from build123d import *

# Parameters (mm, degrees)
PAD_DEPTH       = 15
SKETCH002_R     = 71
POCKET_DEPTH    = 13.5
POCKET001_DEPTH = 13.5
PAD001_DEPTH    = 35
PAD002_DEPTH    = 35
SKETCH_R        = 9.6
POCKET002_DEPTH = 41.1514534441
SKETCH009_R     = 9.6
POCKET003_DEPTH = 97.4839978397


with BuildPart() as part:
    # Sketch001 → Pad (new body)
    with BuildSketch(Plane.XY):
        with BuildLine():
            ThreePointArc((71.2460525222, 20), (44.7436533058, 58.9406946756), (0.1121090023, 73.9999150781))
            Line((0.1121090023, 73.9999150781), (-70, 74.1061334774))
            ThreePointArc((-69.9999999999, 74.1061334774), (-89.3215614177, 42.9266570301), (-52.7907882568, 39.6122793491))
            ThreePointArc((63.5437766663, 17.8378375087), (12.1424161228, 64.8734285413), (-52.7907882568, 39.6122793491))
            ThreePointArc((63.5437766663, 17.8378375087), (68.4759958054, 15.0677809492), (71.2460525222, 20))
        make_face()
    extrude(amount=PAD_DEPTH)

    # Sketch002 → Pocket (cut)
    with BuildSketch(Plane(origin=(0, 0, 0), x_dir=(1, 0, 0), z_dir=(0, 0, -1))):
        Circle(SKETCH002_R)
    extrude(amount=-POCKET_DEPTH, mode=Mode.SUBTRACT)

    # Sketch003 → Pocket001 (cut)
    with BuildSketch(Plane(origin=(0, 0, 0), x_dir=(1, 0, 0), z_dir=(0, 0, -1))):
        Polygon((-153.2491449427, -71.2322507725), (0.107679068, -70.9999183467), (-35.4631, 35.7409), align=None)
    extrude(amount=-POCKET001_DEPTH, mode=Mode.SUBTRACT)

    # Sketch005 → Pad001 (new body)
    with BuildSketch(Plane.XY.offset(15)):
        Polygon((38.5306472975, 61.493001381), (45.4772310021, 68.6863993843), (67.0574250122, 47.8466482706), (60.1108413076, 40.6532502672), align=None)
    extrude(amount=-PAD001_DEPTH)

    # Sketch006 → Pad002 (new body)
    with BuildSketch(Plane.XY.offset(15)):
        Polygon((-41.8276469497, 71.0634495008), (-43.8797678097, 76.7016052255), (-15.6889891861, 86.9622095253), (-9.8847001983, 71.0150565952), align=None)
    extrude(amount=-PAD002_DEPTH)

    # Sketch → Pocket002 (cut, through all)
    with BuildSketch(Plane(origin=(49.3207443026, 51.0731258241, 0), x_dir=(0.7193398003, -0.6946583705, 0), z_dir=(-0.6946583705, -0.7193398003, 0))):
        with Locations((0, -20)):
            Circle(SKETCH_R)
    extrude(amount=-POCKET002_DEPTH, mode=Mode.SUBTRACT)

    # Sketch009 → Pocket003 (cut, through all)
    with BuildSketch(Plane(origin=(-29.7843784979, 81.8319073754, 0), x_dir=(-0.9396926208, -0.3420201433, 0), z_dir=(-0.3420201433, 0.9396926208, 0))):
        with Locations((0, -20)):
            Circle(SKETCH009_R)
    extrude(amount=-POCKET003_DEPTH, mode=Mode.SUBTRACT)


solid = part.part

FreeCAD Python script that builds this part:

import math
import FreeCAD as App
import Part
import Sketcher
Q = App.Units.Quantity


def add_polygon(sketch, points):
    """Adds a closed chain of lines whose ends are joined by coincident constraints."""
    first, n = sketch.GeometryCount, len(points)
    for a, b in zip(points, points[1:] + points[:1]):
        sketch.addGeometry(Part.LineSegment(App.Vector(*a, 0), App.Vector(*b, 0)), False)
    for i in range(n):
        sketch.addConstraint(Sketcher.Constraint("Coincident", first + i, 2, first + (i + 1) % n, 1))

doc = App.newDocument("Part")
body = doc.addObject("PartDesign::Body", "Body")

sketch1 = doc.addObject("Sketcher::SketchObject", "Sketch")
body.addObject(sketch1)
sketch1.AttachmentSupport = (doc.XY_Plane, [""])
sketch1.MapMode = "FlatFace"
sketch1.addGeometry(Part.ArcOfCircle(Part.Circle(App.Vector(0, 0, 0), App.Vector(0, 0, 1), 74), math.radians(15.68035), math.radians(89.913198)), False)
sketch1.addGeometry(Part.LineSegment(App.Vector(0.112109, 73.999915, 0), App.Vector(-70, 74.106133, 0)), False)
sketch1.addGeometry(Part.ArcOfCircle(Part.Circle(App.Vector(-70.032711, 52.549992, 0), App.Vector(0, 0, 1), 21.556166), math.radians(89.913054), math.radians(323.116769)), False)
sketch1.addGeometry(Part.ArcOfCircle(Part.Circle(App.Vector(0, 0, 0), App.Vector(0, 0, 1), 66), math.radians(15.68035), math.radians(143.116776)), False)
sketch1.addGeometry(Part.ArcOfCircle(Part.Circle(App.Vector(67.394915, 18.918919, 0), App.Vector(0, 0, 1), 4), math.radians(-164.319646), math.radians(15.680351)), False)
sketch1.addConstraint(Sketcher.Constraint("Tangent", 0, 2, 1, 1))
sketch1.addConstraint(Sketcher.Constraint("Coincident", 1, 2, 2, 1))
sketch1.addConstraint(Sketcher.Constraint("Tangent", 2, 2, 3, 2))
sketch1.addConstraint(Sketcher.Constraint("Tangent", 3, 1, 4, 1))
sketch1.addConstraint(Sketcher.Constraint("Tangent", 4, 2, 0, 1))
sketch1.addConstraint(Sketcher.Constraint("Coincident", 0, 3, -1, 1))
sketch1.addConstraint(Sketcher.Constraint("Coincident", 3, 3, -1, 1))
sketch1.addConstraint(Sketcher.Constraint("Radius", 0, Q("74 mm")))
sketch1.addConstraint(Sketcher.Constraint("Radius", 3, Q("66 mm")))
sketch1.addConstraint(Sketcher.Constraint("DistanceX", 1, 2, -1, 1, Q("70 mm")))
sketch1.addConstraint(Sketcher.Constraint("DistanceY", -1, 1, 4, 2, Q("20 mm")))
sketch1.addConstraint(Sketcher.Constraint("Radius", 2, Q("21.556166 mm")))
sketch1.addConstraint(Sketcher.Constraint("Distance", 1, Q("70.112189 mm")))
pad1 = doc.addObject("PartDesign::Pad", "Pad")
body.addObject(pad1)
pad1.Profile = sketch1
pad1.Length = 15

sketch2 = doc.addObject("Sketcher::SketchObject", "Sketch001")
body.addObject(sketch2)
sketch2.AttachmentSupport = (doc.XY_Plane, [""])
sketch2.MapMode = "FlatFace"
sketch2.addGeometry(Part.Circle(App.Vector(0, 0, 0), App.Vector(0, 0, 1), 71), False)
sketch2.addConstraint(Sketcher.Constraint("Coincident", 0, 3, -1, 1))
sketch2.addConstraint(Sketcher.Constraint("Diameter", 0, Q("142 mm")))
pocket1 = doc.addObject("PartDesign::Pocket", "Pocket")
body.addObject(pocket1)
pocket1.Profile = sketch2
pocket1.Length = 13.5
pocket1.Reversed = True

sketch3 = doc.addObject("Sketcher::SketchObject", "Sketch002")
body.addObject(sketch3)
sketch3.AttachmentSupport = (doc.XY_Plane, [""])
sketch3.MapMode = "FlatFace"
add_polygon(sketch3, [(-153.249145, 71.232251), (0.107679, 70.999918), (-35.4631, -35.7409)])
sketch3.addConstraint(Sketcher.Constraint("Distance", 0, Q("153.357 mm")))
sketch3.addConstraint(Sketcher.Constraint("Distance", 1, Q("112.5117 mm")))
sketch3.addConstraint(Sketcher.Constraint("DistanceX", 1, 2, -1, 1, Q("35.4631 mm")))
sketch3.addConstraint(Sketcher.Constraint("DistanceY", 1, 2, -1, 1, Q("35.7409 mm")))
sketch3.addConstraint(Sketcher.Constraint("Distance", 2, Q("159.112562 mm")))
sketch3.addConstraint(Sketcher.Constraint("DistanceX", -1, 1, 0, 2, Q("0.107679 mm")))
pocket2 = doc.addObject("PartDesign::Pocket", "Pocket001")
body.addObject(pocket2)
pocket2.Profile = sketch3
pocket2.Length = 13.5
pocket2.Reversed = True

sketch4 = doc.addObject("Sketcher::SketchObject", "Sketch003")
body.addObject(sketch4)
sketch4.AttachmentSupport = (doc.XY_Plane, [""])
sketch4.MapMode = "FlatFace"
sketch4.AttachmentOffset = App.Placement(App.Vector(0, 0, 15), App.Rotation())
add_polygon(sketch4, [(45.477231, 68.686399), (38.530647, 61.493001), (60.110841, 40.65325), (67.057425, 47.846648)])
sketch4.addConstraint(Sketcher.Constraint("Perpendicular", 0, 1))
sketch4.addConstraint(Sketcher.Constraint("Perpendicular", 1, 2))
sketch4.addConstraint(Sketcher.Constraint("Perpendicular", 2, 3))
sketch4.addConstraint(Sketcher.Constraint("Angle", 0, Q("-134 deg")))
sketch4.addConstraint(Sketcher.Constraint("Distance", 0, Q("10 mm")))
sketch4.addConstraint(Sketcher.Constraint("Distance", 1, Q("30 mm")))
sketch4.addConstraint(Sketcher.Constraint("DistanceY", -1, 1, 0, 2, Q("61.493001 mm")))
sketch4.addConstraint(Sketcher.Constraint("DistanceX", -1, 1, 1, 2, Q("60.110841 mm")))
pad2 = doc.addObject("PartDesign::Pad", "Pad001")
body.addObject(pad2)
pad2.Profile = sketch4
pad2.Length = 35
pad2.Reversed = True

sketch5 = doc.addObject("Sketcher::SketchObject", "Sketch004")
body.addObject(sketch5)
sketch5.AttachmentSupport = (doc.XY_Plane, [""])
sketch5.MapMode = "FlatFace"
sketch5.AttachmentOffset = App.Placement(App.Vector(0, 0, 15), App.Rotation())
add_polygon(sketch5, [(-43.879768, 76.701605), (-41.827647, 71.06345), (-9.8847, 71.015057), (-15.688989, 86.96221)])
sketch5.addConstraint(Sketcher.Constraint("Parallel", 0, 2))
sketch5.addConstraint(Sketcher.Constraint("Perpendicular", 2, 3))
sketch5.addConstraint(Sketcher.Constraint("Angle", 0, Q("-70 deg")))
sketch5.addConstraint(Sketcher.Constraint("Distance", 0, Q("6 mm")))
sketch5.addConstraint(Sketcher.Constraint("Distance", 3, Q("30 mm")))
sketch5.addConstraint(Sketcher.Constraint("DistanceX", 1, 2, -1, 1, Q("9.8847 mm")))
sketch5.addConstraint(Sketcher.Constraint("DistanceY", -1, 1, 0, 2, Q("71.06345 mm")))
sketch5.addConstraint(Sketcher.Constraint("DistanceX", 2, 2, -1, 1, Q("15.688989 mm")))
pad3 = doc.addObject("PartDesign::Pad", "Pad002")
body.addObject(pad3)
pad3.Profile = sketch5
pad3.Length = 35
pad3.Reversed = True

sketch6 = doc.addObject("Sketcher::SketchObject", "Sketch005")
body.addObject(sketch6)
sketch6.Placement = App.Placement(App.Vector(49.320744, 51.073126, 0), App.Rotation(App.Vector(0.7193398, -0.69465837, 0), App.Vector(0, 0, 0.999999999), App.Vector(-0.69465837, -0.7193398, 0), "ZXY"))
sketch6.addGeometry(Part.Circle(App.Vector(0, -20, 0), App.Vector(0, 0, 1), 9.6), False)
sketch6.addConstraint(Sketcher.Constraint("PointOnObject", 0, 3, -2))
sketch6.addConstraint(Sketcher.Constraint("Diameter", 0, Q("19.2 mm")))
sketch6.addConstraint(Sketcher.Constraint("DistanceY", 0, 3, -1, 1, Q("20 mm")))
pocket3 = doc.addObject("PartDesign::Pocket", "Pocket002")
body.addObject(pocket3)
pocket3.Profile = sketch6
pocket3.Type = "ThroughAll"

sketch7 = doc.addObject("Sketcher::SketchObject", "Sketch006")
body.addObject(sketch7)
sketch7.Placement = App.Placement(App.Vector(-29.784378, 81.831907, 0), App.Rotation(App.Vector(-0.939692621, -0.342020143, 0), App.Vector(0, 0, 1), App.Vector(-0.342020143, 0.939692621, 0), "ZXY"))
sketch7.addGeometry(Part.Circle(App.Vector(0, -20, 0), App.Vector(0, 0, 1), 9.6), False)
sketch7.addConstraint(Sketcher.Constraint("PointOnObject", 0, 3, -2))
sketch7.addConstraint(Sketcher.Constraint("Diameter", 0, Q("19.2 mm")))
sketch7.addConstraint(Sketcher.Constraint("DistanceY", 0, 3, -1, 1, Q("20 mm")))
pocket4 = doc.addObject("PartDesign::Pocket", "Pocket003")
body.addObject(pocket4)
pocket4.Profile = sketch7
pocket4.Type = "ThroughAll"

doc.recompute()
